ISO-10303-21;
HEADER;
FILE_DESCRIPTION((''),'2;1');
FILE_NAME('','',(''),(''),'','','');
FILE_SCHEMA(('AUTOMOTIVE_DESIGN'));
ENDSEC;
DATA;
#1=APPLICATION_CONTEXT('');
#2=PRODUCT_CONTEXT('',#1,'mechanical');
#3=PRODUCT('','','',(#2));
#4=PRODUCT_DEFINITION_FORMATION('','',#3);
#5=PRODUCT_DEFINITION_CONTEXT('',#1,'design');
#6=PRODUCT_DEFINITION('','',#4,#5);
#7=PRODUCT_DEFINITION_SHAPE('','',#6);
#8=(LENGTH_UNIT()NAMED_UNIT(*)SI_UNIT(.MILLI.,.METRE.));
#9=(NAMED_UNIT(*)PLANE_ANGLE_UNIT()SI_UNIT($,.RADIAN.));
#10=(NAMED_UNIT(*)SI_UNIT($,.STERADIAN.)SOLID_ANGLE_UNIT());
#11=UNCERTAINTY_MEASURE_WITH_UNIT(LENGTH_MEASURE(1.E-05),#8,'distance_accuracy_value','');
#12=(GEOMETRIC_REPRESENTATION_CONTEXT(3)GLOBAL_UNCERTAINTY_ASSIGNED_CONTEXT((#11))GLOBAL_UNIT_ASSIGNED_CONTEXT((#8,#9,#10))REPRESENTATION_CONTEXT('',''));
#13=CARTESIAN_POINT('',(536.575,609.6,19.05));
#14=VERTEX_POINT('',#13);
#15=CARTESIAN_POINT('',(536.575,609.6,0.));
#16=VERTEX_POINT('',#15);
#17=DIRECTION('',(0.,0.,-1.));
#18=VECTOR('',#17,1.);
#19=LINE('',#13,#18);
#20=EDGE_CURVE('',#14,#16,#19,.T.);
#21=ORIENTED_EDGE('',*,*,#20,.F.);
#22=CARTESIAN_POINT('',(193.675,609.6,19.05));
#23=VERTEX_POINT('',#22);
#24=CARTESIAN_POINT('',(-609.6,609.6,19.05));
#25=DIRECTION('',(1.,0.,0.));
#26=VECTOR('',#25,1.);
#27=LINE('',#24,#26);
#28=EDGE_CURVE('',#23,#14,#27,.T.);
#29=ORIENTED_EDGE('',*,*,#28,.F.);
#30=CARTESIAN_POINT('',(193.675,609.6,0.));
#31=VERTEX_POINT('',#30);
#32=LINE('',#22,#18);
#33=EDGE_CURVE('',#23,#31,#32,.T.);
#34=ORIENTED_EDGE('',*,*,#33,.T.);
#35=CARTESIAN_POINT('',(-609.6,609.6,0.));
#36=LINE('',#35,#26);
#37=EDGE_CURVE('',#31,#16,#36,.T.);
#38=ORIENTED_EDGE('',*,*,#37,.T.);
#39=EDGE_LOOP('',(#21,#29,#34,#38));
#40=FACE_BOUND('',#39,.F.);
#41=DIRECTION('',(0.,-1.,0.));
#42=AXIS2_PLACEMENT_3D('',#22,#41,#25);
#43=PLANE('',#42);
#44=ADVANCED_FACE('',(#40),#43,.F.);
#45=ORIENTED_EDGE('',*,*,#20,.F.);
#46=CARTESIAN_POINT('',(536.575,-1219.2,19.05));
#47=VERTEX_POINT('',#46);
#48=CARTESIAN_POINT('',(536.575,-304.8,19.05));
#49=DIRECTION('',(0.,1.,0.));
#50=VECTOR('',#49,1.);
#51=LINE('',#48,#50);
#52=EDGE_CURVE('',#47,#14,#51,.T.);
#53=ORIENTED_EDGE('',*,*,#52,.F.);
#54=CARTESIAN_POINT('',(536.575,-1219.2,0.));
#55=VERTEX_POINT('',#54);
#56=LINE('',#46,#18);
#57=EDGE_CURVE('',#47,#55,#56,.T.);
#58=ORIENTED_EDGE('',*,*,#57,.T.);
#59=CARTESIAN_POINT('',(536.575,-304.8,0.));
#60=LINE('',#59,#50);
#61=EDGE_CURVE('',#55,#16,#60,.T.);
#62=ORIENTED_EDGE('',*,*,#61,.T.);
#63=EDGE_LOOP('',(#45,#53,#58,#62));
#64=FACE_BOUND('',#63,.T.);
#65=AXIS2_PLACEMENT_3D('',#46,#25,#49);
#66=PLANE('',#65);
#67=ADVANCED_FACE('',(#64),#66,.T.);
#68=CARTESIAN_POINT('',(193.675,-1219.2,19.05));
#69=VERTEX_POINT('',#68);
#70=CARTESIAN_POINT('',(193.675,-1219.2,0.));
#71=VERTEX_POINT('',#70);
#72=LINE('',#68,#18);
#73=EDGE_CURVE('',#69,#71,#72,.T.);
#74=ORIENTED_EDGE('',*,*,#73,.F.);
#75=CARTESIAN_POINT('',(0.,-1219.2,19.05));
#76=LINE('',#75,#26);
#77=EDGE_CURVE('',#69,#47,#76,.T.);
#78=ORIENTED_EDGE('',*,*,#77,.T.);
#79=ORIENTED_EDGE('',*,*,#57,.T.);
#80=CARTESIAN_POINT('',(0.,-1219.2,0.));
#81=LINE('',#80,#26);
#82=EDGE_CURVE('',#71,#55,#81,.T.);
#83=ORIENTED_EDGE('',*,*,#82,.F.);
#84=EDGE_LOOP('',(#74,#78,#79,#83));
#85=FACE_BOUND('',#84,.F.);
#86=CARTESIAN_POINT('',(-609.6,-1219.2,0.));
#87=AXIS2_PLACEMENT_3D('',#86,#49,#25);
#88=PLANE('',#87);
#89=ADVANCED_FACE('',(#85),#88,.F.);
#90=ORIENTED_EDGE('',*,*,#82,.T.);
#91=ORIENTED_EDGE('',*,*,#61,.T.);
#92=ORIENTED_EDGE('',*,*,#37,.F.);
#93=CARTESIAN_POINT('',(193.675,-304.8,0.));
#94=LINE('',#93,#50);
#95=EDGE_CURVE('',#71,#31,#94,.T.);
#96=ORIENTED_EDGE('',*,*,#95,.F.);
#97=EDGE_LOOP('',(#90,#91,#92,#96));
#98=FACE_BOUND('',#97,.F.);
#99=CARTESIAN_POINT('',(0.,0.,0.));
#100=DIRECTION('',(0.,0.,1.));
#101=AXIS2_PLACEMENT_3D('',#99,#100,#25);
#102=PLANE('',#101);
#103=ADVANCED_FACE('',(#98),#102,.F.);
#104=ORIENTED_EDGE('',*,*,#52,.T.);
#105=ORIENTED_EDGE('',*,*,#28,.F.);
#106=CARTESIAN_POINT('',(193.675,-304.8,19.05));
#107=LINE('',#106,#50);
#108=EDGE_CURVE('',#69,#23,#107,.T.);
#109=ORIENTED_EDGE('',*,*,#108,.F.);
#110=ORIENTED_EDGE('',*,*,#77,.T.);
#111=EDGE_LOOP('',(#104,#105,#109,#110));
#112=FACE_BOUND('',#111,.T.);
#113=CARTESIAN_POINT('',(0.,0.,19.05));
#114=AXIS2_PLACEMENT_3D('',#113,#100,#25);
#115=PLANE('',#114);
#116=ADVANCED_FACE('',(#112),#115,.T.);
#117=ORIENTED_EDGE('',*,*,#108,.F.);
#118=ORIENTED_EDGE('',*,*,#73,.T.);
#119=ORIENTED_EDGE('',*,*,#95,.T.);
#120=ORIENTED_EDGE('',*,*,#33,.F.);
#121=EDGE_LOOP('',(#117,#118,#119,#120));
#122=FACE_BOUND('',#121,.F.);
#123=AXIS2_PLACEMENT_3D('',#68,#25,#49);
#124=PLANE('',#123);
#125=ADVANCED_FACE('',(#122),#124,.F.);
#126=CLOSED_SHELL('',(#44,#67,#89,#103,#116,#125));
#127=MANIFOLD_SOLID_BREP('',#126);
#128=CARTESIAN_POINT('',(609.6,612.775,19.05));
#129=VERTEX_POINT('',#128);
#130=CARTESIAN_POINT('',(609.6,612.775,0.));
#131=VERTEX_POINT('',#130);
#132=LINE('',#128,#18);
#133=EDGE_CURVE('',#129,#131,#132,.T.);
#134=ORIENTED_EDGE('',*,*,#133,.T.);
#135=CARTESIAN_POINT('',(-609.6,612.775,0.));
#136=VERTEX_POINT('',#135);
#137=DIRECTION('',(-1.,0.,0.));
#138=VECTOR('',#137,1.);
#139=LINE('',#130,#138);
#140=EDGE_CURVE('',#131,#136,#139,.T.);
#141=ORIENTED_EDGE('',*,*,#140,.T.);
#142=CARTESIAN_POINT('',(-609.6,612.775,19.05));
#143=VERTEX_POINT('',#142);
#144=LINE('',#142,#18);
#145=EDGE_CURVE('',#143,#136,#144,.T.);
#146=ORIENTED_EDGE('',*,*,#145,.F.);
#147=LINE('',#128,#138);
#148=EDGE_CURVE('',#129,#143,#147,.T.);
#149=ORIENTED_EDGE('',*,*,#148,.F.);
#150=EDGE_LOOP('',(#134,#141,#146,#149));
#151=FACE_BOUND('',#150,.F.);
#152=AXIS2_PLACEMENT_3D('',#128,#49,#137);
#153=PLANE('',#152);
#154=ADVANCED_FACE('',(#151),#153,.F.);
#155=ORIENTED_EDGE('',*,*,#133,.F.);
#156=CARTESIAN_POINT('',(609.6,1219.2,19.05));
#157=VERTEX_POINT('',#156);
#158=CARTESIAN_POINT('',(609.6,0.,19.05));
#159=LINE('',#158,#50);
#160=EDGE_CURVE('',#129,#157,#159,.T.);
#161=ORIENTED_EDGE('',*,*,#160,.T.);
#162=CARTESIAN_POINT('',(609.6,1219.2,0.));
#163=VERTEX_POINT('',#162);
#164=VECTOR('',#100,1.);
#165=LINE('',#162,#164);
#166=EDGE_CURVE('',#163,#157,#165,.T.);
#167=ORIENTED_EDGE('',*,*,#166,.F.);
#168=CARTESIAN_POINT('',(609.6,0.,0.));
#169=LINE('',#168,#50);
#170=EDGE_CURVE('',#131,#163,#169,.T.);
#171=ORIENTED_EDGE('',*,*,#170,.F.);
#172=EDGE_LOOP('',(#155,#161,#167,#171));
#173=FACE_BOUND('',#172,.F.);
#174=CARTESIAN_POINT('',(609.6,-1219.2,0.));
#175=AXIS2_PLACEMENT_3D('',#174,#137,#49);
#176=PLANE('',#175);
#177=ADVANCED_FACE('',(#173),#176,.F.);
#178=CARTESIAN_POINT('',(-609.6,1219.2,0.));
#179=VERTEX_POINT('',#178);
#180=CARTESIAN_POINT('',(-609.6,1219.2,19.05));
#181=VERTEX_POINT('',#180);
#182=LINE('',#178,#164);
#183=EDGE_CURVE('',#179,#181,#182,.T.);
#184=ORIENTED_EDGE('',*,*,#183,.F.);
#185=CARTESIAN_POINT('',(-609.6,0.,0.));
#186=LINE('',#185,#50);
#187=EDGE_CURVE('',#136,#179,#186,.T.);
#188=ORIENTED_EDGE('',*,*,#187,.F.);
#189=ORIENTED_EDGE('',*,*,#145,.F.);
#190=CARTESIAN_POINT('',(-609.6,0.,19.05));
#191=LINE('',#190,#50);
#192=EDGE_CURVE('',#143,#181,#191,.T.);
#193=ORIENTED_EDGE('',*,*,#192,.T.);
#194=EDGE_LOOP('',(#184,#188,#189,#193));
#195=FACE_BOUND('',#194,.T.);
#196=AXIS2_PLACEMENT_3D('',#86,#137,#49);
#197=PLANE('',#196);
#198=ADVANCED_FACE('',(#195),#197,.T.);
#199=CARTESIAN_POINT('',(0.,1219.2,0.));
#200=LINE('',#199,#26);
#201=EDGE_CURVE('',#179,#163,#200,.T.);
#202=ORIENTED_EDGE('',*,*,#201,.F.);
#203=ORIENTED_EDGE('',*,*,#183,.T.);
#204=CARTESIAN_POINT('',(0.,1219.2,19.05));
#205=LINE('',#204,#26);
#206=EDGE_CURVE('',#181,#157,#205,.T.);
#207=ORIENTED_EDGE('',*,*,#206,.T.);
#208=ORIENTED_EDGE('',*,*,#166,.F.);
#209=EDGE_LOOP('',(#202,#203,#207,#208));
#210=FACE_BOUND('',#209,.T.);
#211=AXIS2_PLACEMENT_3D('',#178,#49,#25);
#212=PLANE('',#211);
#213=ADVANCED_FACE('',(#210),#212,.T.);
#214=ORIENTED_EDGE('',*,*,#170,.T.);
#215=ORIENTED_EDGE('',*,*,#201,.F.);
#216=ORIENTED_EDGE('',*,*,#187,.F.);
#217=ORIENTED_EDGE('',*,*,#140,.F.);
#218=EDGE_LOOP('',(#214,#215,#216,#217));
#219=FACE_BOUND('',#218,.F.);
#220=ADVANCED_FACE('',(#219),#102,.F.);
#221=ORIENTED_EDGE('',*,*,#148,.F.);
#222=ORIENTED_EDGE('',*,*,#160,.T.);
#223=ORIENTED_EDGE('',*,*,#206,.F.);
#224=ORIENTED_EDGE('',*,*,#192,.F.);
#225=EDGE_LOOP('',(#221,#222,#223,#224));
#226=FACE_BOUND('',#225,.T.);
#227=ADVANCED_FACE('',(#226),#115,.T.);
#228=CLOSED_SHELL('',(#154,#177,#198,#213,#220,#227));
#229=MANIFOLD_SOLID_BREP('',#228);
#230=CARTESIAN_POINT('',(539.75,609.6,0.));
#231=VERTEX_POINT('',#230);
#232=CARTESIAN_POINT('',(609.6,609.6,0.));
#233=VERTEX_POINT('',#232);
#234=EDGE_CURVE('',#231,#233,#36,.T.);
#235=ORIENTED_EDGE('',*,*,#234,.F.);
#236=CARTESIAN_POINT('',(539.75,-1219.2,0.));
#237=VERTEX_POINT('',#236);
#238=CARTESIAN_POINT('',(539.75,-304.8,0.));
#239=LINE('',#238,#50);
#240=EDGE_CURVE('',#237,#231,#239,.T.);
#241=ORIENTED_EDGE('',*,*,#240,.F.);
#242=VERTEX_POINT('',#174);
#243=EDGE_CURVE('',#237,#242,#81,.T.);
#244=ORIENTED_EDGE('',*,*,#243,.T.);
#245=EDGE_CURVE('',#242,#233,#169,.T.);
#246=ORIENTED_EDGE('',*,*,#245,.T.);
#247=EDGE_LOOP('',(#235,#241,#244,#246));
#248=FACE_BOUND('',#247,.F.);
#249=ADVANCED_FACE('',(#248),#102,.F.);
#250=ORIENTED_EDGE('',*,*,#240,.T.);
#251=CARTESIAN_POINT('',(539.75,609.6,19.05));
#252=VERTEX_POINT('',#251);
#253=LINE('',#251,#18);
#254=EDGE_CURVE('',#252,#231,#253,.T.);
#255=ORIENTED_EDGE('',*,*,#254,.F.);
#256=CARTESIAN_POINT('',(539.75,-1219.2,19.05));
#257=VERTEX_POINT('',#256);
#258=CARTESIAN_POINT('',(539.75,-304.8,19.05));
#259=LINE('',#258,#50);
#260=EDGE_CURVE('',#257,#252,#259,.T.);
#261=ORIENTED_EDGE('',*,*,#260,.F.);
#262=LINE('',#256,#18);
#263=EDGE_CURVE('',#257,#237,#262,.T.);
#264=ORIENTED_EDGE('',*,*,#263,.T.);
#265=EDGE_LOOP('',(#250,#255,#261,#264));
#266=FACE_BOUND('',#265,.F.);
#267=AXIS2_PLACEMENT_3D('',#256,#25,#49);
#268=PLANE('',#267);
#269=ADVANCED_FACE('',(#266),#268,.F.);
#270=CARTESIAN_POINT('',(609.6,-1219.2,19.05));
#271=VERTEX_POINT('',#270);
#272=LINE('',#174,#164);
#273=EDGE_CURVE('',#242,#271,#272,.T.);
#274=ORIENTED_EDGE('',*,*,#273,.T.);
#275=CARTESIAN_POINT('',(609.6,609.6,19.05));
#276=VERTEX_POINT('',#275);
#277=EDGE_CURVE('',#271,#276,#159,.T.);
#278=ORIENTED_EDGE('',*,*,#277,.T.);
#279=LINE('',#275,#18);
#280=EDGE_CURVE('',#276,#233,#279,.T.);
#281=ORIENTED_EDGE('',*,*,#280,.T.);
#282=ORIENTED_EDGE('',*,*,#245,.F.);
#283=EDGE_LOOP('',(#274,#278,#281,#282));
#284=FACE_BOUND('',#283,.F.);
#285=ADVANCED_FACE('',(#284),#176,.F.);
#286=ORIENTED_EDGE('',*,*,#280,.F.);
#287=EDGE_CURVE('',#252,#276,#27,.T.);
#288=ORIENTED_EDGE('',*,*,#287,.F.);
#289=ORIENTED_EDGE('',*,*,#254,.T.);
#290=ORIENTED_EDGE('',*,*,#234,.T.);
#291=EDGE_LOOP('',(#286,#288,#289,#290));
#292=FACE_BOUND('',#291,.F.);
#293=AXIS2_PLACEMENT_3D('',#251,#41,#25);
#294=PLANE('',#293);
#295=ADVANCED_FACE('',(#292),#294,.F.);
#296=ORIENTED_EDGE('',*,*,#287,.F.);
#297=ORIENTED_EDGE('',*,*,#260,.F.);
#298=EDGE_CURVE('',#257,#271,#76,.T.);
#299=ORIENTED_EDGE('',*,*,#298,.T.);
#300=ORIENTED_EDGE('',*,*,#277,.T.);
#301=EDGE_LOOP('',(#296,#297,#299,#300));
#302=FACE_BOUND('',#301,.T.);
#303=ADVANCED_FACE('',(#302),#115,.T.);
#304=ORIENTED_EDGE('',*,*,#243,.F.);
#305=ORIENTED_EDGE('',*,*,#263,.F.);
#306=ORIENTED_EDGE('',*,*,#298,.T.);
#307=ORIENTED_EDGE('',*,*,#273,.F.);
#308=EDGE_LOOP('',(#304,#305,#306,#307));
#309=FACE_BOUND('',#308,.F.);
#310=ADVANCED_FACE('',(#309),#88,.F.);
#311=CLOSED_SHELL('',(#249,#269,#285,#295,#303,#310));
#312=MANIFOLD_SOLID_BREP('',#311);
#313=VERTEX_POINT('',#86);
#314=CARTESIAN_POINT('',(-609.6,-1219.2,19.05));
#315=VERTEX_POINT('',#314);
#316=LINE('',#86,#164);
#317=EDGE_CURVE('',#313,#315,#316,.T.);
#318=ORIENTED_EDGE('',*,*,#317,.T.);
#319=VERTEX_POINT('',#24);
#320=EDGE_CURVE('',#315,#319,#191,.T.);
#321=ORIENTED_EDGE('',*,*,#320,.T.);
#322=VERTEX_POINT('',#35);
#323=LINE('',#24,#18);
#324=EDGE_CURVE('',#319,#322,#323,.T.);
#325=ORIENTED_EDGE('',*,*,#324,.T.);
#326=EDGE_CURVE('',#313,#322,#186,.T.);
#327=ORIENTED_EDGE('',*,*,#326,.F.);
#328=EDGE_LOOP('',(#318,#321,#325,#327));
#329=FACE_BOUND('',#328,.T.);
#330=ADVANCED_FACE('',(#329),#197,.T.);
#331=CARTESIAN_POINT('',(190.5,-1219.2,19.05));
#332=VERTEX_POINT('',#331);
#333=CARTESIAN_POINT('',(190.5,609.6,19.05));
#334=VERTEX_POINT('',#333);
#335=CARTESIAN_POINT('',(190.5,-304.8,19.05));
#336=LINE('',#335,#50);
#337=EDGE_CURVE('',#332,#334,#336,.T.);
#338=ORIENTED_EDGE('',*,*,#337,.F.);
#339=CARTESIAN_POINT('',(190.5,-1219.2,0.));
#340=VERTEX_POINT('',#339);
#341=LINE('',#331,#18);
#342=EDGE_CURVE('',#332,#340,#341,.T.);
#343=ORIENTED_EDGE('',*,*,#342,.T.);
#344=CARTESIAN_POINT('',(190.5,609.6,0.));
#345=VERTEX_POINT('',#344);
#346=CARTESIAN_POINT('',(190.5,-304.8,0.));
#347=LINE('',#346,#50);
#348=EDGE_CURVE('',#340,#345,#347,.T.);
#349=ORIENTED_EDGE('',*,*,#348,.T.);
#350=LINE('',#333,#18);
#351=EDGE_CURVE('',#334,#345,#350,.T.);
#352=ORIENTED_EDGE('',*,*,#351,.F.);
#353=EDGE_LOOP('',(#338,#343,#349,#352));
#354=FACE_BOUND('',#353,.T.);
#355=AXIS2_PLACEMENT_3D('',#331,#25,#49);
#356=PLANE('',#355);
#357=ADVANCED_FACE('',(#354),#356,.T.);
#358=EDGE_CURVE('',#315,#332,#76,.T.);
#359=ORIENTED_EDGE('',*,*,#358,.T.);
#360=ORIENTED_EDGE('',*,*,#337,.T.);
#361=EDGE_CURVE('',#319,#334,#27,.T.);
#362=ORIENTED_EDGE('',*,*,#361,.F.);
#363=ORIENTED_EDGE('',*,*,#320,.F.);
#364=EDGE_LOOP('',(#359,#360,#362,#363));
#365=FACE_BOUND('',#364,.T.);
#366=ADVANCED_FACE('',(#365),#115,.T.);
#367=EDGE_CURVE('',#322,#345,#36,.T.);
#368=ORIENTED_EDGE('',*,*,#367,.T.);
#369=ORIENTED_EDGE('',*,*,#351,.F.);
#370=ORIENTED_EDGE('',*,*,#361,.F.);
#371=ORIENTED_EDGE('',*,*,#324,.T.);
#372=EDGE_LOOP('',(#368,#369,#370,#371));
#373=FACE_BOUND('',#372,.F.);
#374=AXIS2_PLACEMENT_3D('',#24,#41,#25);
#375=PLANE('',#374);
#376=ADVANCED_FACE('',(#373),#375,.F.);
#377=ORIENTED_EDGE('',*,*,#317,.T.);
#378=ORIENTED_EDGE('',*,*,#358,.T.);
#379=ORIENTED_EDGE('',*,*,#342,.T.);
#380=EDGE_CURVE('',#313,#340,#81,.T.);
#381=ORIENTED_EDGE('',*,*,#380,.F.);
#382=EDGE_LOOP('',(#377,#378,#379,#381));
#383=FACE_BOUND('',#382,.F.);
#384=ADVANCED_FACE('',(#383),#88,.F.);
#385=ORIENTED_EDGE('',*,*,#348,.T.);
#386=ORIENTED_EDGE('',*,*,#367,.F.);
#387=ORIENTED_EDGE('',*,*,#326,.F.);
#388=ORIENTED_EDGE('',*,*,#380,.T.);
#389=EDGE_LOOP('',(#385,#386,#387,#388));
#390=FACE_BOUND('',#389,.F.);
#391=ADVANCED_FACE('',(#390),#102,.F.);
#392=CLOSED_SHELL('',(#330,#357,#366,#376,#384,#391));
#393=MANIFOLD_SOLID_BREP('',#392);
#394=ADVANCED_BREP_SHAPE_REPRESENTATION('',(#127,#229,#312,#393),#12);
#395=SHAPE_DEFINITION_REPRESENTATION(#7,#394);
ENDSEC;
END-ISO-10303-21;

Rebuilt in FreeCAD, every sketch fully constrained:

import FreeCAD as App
import Part
import Sketcher
from FreeCAD import Vector
Q = App.Units.Quantity

doc = App.newDocument("Part")
body = doc.addObject("PartDesign::Body", "Body")
body.AllowCompound = True

# Sketch on XY plane
sketch1 = body.newObject("Sketcher::SketchObject", "Sketch")
sketch1.AttachmentSupport = (doc.getObject("XY_Plane"), [""])
sketch1.MapMode = "FlatFace"
sketch1.addGeometry([
    Part.LineSegment(Vector(-609.6, 1219.2, 0), Vector(-609.6, -1219.2, 0)),
    Part.LineSegment(Vector(-609.6, -1219.2, 0), Vector(609.6, -1219.2, 0)),
    Part.LineSegment(Vector(609.6, -1219.2, 0), Vector(609.6, 1219.2, 0)),
    Part.LineSegment(Vector(609.6, 1219.2, 0), Vector(-609.6, 1219.2, 0)),
], False)
sketch1.addConstraint([
    Sketcher.Constraint("Coincident", 0, 2, 1, 1),
    Sketcher.Constraint("Coincident", 1, 2, 2, 1),
    Sketcher.Constraint("Coincident", 2, 2, 3, 1),
    Sketcher.Constraint("Coincident", 3, 2, 0, 1),
    Sketcher.Constraint("Vertical", 0),
    Sketcher.Constraint("Horizontal", 1),
    Sketcher.Constraint("Vertical", 2),
    Sketcher.Constraint("Horizontal", 3),
    Sketcher.Constraint("Symmetric", 0, 2, 2, 2, -1, 1),
    Sketcher.Constraint("DistanceX", 1, 1, 1, 2, Q("48 in")),
    Sketcher.Constraint("DistanceY", 0, 2, 0, 1, Q("96 in")),
])
pad1 = body.newObject("PartDesign::Pad", "Pad")
pad1.Profile = sketch1
pad1.Length = Q("0.75 in")

# Sketch on XY plane
sketch2 = body.newObject("Sketcher::SketchObject", "Sketch001")
sketch2.AttachmentSupport = (doc.getObject("XY_Plane"), [""])
sketch2.MapMode = "FlatFace"
sketch2.AttachmentOffset = App.Placement(Vector(0, 0, 0.75 * 25.4), App.Rotation())
sketch2.addGeometry([
    Part.LineSegment(Vector(-609.6, 612.775, 0), Vector(-609.6, 609.6, 0)),  # 0
    Part.LineSegment(Vector(-609.6, 609.6, 0), Vector(190.5, 609.6, 0)),  # 1
    Part.LineSegment(Vector(190.5, 609.6, 0), Vector(190.5, -1219.2, 0)),  # 2
    Part.LineSegment(Vector(190.5, -1219.2, 0), Vector(193.675, -1219.2, 0)),  # 3
    Part.LineSegment(Vector(193.675, -1219.2, 0), Vector(193.675, 609.6, 0)),  # 4
    Part.LineSegment(Vector(193.675, 609.6, 0), Vector(536.575, 609.6, 0)),  # 5
    Part.LineSegment(Vector(536.575, 609.6, 0), Vector(536.575, -1219.2, 0)),  # 6
    Part.LineSegment(Vector(536.575, -1219.2, 0), Vector(539.75, -1219.2, 0)),  # 7
    Part.LineSegment(Vector(539.75, -1219.2, 0), Vector(539.75, 609.6, 0)),  # 8
    Part.LineSegment(Vector(539.75, 609.6, 0), Vector(609.6, 609.6, 0)),  # 9
    Part.LineSegment(Vector(609.6, 609.6, 0), Vector(609.6, 612.775, 0)),  # 10
    Part.LineSegment(Vector(609.6, 612.775, 0), Vector(-609.6, 612.775, 0)),  # 11
], False)
sketch2.addConstraint([
    Sketcher.Constraint("Coincident", 0, 2, 1, 1),
    Sketcher.Constraint("Coincident", 1, 2, 2, 1),
    Sketcher.Constraint("Coincident", 2, 2, 3, 1),
    Sketcher.Constraint("Coincident", 3, 2, 4, 1),
    Sketcher.Constraint("Coincident", 4, 2, 5, 1),
    Sketcher.Constraint("Coincident", 5, 2, 6, 1),
    Sketcher.Constraint("Coincident", 6, 2, 7, 1),
    Sketcher.Constraint("Coincident", 7, 2, 8, 1),
    Sketcher.Constraint("Coincident", 8, 2, 9, 1),
    Sketcher.Constraint("Coincident", 9, 2, 10, 1),
    Sketcher.Constraint("Coincident", 10, 2, 11, 1),
    Sketcher.Constraint("Coincident", 11, 2, 0, 1),
    Sketcher.Constraint("Vertical", 0),
    Sketcher.Constraint("Horizontal", 1),
    Sketcher.Constraint("Vertical", 2),
    Sketcher.Constraint("Horizontal", 3),
    Sketcher.Constraint("Vertical", 4),
    Sketcher.Constraint("Horizontal", 5),
    Sketcher.Constraint("Vertical", 6),
    Sketcher.Constraint("Horizontal", 7),
    Sketcher.Constraint("Vertical", 8),
    Sketcher.Constraint("Horizontal", 9),
    Sketcher.Constraint("Vertical", 10),
    Sketcher.Constraint("Horizontal", 11),
    Sketcher.Constraint("Symmetric", 0, 2, 9, 2, -2),
    Sketcher.Constraint("Horizontal", 1, 2, 4, 2),
    Sketcher.Constraint("Horizontal", 3, 2, 6, 2),
    Sketcher.Constraint("Equal", 3, 7),
    Sketcher.Constraint("Equal", 7, 0),
    Sketcher.Constraint("DistanceX", 11, 2, 11, 1, Q("48 in")),
    Sketcher.Constraint("DistanceY", 2, 2, 2, 1, Q("72 in")),
    Sketcher.Constraint("DistanceX", 1, 1, 1, 2, Q("31.5 in")),
    Sketcher.Constraint("DistanceX", 5, 1, 5, 2, Q("13.5 in")),
    Sketcher.Constraint("DistanceY", -1, 1, 0, 2, Q("24 in")),
    Sketcher.Constraint("DistanceX", 9, 1, 9, 2, Q("2.75 in")),
])
pocket1 = body.newObject("PartDesign::Pocket", "Pocket")
pocket1.Profile = sketch2
pocket1.Type = "ThroughAll"

doc.recompute()
